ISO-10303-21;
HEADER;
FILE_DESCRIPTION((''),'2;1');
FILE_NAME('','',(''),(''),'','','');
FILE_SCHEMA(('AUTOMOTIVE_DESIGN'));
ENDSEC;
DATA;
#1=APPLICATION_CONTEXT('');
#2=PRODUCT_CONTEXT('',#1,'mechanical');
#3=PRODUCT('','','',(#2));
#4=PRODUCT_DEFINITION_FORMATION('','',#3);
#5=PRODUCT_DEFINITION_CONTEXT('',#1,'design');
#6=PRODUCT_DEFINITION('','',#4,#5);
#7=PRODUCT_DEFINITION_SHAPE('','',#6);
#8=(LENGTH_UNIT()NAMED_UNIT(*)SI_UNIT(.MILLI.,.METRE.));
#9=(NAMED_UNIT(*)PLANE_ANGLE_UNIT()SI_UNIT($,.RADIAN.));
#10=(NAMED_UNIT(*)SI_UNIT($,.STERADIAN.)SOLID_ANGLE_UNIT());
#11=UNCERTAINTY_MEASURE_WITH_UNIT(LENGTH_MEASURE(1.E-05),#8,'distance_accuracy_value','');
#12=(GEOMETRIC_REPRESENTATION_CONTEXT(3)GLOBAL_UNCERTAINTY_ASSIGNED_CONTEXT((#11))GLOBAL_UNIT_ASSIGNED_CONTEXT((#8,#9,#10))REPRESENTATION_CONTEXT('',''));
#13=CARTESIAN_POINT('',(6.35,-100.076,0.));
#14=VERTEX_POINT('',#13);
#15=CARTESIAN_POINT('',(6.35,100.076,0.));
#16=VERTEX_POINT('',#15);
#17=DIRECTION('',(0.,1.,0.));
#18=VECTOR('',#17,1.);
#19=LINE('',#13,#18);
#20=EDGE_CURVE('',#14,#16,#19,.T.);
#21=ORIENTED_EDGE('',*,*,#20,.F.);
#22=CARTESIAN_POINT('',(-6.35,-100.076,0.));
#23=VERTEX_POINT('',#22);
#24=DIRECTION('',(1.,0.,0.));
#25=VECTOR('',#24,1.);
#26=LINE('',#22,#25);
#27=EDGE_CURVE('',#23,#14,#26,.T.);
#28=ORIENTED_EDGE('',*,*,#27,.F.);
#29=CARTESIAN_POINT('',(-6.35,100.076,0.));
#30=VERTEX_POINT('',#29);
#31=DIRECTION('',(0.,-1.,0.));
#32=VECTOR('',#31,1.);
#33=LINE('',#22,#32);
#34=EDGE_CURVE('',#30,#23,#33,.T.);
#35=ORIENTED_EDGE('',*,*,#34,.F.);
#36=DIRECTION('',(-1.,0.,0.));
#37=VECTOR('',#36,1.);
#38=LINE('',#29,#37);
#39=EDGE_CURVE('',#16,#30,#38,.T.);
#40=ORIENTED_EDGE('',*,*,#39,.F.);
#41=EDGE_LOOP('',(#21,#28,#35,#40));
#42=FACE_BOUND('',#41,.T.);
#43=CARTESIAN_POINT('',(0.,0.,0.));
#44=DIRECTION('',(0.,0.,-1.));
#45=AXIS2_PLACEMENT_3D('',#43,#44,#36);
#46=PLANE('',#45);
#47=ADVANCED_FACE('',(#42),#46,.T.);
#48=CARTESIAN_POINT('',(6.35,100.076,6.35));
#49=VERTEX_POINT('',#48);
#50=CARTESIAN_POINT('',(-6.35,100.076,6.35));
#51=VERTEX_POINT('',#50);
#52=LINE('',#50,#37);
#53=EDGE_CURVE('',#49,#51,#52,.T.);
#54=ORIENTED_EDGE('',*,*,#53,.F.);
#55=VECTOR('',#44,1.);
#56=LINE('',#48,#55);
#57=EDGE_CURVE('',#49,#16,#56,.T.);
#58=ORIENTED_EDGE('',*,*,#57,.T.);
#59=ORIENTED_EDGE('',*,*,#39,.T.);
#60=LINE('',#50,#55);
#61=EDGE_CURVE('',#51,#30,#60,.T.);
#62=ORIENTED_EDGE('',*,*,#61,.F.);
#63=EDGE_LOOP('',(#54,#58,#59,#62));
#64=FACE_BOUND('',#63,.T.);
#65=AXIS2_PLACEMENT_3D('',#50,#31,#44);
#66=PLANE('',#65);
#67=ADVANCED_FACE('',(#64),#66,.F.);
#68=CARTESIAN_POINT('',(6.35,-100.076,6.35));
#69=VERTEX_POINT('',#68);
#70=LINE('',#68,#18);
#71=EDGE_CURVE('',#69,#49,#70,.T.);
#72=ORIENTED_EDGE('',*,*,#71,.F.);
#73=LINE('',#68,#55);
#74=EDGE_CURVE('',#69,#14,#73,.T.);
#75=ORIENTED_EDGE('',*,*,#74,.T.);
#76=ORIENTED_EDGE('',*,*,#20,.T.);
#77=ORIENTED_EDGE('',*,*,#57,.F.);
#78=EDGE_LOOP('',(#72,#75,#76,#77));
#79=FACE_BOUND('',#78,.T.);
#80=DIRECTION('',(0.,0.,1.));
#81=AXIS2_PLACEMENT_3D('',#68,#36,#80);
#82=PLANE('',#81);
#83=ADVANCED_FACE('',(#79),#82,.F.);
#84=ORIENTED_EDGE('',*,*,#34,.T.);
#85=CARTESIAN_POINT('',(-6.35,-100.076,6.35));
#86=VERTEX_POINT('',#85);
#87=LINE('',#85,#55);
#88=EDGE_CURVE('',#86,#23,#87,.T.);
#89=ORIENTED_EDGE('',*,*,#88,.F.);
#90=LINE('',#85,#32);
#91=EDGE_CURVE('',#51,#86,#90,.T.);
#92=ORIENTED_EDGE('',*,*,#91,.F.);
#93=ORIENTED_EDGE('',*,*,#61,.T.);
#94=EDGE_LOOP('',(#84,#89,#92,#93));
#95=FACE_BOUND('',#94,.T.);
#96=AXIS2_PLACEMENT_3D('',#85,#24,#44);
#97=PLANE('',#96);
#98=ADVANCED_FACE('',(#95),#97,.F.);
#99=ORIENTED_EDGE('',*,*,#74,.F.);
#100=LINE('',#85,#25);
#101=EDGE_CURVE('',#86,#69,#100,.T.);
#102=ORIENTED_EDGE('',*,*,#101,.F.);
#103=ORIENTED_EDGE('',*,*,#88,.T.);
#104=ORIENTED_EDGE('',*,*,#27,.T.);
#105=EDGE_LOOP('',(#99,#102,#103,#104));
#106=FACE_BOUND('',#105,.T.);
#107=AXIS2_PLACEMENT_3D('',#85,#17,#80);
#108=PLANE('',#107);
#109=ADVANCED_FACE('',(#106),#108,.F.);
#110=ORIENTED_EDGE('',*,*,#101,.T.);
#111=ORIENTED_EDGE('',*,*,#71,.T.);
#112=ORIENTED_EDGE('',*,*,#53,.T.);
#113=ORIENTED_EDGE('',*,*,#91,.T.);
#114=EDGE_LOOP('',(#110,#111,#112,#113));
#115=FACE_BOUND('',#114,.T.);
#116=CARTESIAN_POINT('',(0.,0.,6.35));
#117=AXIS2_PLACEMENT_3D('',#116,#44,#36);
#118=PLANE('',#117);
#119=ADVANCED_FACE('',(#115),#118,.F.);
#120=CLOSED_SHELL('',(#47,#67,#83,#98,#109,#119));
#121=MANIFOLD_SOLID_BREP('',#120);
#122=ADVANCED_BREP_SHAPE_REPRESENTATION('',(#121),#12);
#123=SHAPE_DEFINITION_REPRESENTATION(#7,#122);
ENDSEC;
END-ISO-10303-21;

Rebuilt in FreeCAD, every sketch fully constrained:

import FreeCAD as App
import Part
import Sketcher
from FreeCAD import Vector
Q = App.Units.Quantity


def add_polygon(sketch, points):
    """Adds a closed chain of lines whose ends are joined by coincident constraints."""
    first, n = sketch.GeometryCount, len(points)
    for a, b in zip(points, points[1:] + points[:1]):
        sketch.addGeometry(Part.LineSegment(App.Vector(*a, 0), App.Vector(*b, 0)), False)
    for i in range(n):
        sketch.addConstraint(Sketcher.Constraint("Coincident", first + i, 2, first + (i + 1) % n, 1))

doc = App.newDocument("Part")
body = doc.addObject("PartDesign::Body", "Body")

sketch1 = doc.addObject("Sketcher::SketchObject", "Sketch")
body.addObject(sketch1)
sketch1.AttachmentSupport = (doc.XY_Plane, [""])
sketch1.MapMode = "FlatFace"
add_polygon(sketch1, [(-6, 100), (-6, -100), (6, -100), (6, 100)])
sketch1.addConstraint([
    Sketcher.Constraint("Vertical", 0),
    Sketcher.Constraint("Horizontal", 1),
    Sketcher.Constraint("Vertical", 2),
    Sketcher.Constraint("Horizontal", 3),
    Sketcher.Constraint("Symmetric", 0, 2, 2, 2, -1, 1),
    Sketcher.Constraint("DistanceX", 1, 1, 1, 2, Q("0.5 in")),
    Sketcher.Constraint("DistanceY", 0, 2, 0, 1, Q("7.88 in")),
])
pad1 = doc.addObject("PartDesign::Pad", "Pad")
body.addObject(pad1)
pad1.Profile = sketch1
pad1.Length = Q("0.25 in")

doc.recompute()
